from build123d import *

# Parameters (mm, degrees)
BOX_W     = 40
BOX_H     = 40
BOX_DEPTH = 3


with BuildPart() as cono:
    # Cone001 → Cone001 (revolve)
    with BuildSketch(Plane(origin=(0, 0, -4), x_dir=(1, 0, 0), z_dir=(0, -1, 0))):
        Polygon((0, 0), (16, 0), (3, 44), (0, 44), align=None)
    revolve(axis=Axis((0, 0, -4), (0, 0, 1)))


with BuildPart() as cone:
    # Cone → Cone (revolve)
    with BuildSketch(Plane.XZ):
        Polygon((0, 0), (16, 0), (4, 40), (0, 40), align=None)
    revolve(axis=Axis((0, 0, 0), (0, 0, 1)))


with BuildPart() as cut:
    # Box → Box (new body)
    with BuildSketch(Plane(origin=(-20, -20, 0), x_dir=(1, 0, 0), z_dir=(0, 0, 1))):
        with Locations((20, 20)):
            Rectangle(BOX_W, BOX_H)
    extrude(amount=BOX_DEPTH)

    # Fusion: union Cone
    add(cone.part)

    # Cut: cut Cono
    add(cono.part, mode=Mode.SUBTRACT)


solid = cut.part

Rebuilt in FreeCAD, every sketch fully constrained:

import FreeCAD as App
import Part
import Sketcher
from FreeCAD import Vector


def add_polygon(sketch, points):
    """Adds a closed chain of lines whose ends are joined by coincident constraints."""
    first, n = sketch.GeometryCount, len(points)
    for a, b in zip(points, points[1:] + points[:1]):
        sketch.addGeometry(Part.LineSegment(App.Vector(*a, 0), App.Vector(*b, 0)), False)
    for i in range(n):
        sketch.addConstraint(Sketcher.Constraint("Coincident", first + i, 2, first + (i + 1) % n, 1))

doc = App.newDocument("Part")
body = doc.addObject("PartDesign::Body", "Body")

# Sketch on XZ plane
sketch1 = body.newObject("Sketcher::SketchObject", "Sketch")
sketch1.AttachmentSupport = (doc.getObject("XZ_Plane"), [""])
sketch1.MapMode = "FlatFace"
add_polygon(sketch1, [(0, -4), (16, -4), (3, 40), (0, 40)])  # lines 0-3
sketch1.addConstraint([
    Sketcher.Constraint("Horizontal", 0),
    Sketcher.Constraint("Horizontal", 2),
    Sketcher.Constraint("Vertical", 3),
    Sketcher.Constraint("PointOnObject", 2, 2, -2),
    Sketcher.Constraint("DistanceX", 0, 1, 0, 2, 16.0),
    Sketcher.Constraint("DistanceX", 2, 2, 2, 1, 3.0),
    Sketcher.Constraint("DistanceY", 3, 2, 3, 1, 44.0),
    Sketcher.Constraint("DistanceY", 0, 2, -1, 1, 4.0),
])
revolution = body.newObject("PartDesign::Revolution", "Revolution")
revolution.Profile = sketch1
revolution.ReferenceAxis = (sketch1, ["V_Axis"])
revolution.Angle = 360
body2 = doc.addObject("PartDesign::Body", "Body001")

# Sketch on XZ plane
sketch2 = body2.newObject("Sketcher::SketchObject", "Sketch001")
sketch2.AttachmentSupport = (doc.getObject("XZ_Plane001"), [""])
sketch2.MapMode = "FlatFace"
add_polygon(sketch2, [(0, 0), (16, 0), (4, 40), (0, 40)])  # lines 0-3
sketch2.addConstraint([
    Sketcher.Constraint("Horizontal", 0),
    Sketcher.Constraint("Horizontal", 2),
    Sketcher.Constraint("Vertical", 3),
    Sketcher.Constraint("Coincident", 3, 2, -1, 1),
    Sketcher.Constraint("DistanceX", 0, 1, 0, 2, 16.0),
    Sketcher.Constraint("DistanceX", 2, 2, 2, 1, 4.0),
    Sketcher.Constraint("DistanceY", 3, 2, 3, 1, 40.0),
])
revolution2 = body2.newObject("PartDesign::Revolution", "Revolution001")
revolution2.Profile = sketch2
revolution2.ReferenceAxis = (sketch2, ["V_Axis"])
revolution2.Angle = 360
body3 = doc.addObject("PartDesign::Body", "Body002")

# Sketch on XY plane
sketch3 = body3.newObject("Sketcher::SketchObject", "Sketch002")
sketch3.AttachmentSupport = (doc.getObject("XY_Plane002"), [""])
sketch3.MapMode = "FlatFace"
add_polygon(sketch3, [(-20, 20), (-20, -20), (20, -20), (20, 20)])  # lines 0-3
sketch3.addConstraint([
    Sketcher.Constraint("Vertical", 0),
    Sketcher.Constraint("Horizontal", 1),
    Sketcher.Constraint("Vertical", 2),
    Sketcher.Constraint("Horizontal", 3),
    Sketcher.Constraint("Symmetric", 0, 2, 2, 2, -1, 1),
    Sketcher.Constraint("Equal", 3, 0),
    Sketcher.Constraint("DistanceX", 1, 1, 1, 2, 40.0),
])
pad1 = body3.newObject("PartDesign::Pad", "Pad")
pad1.Profile = sketch3
pad1.Length = 3
doc.recompute()

boolean = body3.newObject("PartDesign::Boolean", "Boolean")
boolean.Type = "Fuse"
boolean.addObjects([body2])
doc.recompute()

boolean2 = body3.newObject("PartDesign::Boolean", "Boolean001")
boolean2.Type = "Cut"
boolean2.addObjects([body])

doc.recompute()
